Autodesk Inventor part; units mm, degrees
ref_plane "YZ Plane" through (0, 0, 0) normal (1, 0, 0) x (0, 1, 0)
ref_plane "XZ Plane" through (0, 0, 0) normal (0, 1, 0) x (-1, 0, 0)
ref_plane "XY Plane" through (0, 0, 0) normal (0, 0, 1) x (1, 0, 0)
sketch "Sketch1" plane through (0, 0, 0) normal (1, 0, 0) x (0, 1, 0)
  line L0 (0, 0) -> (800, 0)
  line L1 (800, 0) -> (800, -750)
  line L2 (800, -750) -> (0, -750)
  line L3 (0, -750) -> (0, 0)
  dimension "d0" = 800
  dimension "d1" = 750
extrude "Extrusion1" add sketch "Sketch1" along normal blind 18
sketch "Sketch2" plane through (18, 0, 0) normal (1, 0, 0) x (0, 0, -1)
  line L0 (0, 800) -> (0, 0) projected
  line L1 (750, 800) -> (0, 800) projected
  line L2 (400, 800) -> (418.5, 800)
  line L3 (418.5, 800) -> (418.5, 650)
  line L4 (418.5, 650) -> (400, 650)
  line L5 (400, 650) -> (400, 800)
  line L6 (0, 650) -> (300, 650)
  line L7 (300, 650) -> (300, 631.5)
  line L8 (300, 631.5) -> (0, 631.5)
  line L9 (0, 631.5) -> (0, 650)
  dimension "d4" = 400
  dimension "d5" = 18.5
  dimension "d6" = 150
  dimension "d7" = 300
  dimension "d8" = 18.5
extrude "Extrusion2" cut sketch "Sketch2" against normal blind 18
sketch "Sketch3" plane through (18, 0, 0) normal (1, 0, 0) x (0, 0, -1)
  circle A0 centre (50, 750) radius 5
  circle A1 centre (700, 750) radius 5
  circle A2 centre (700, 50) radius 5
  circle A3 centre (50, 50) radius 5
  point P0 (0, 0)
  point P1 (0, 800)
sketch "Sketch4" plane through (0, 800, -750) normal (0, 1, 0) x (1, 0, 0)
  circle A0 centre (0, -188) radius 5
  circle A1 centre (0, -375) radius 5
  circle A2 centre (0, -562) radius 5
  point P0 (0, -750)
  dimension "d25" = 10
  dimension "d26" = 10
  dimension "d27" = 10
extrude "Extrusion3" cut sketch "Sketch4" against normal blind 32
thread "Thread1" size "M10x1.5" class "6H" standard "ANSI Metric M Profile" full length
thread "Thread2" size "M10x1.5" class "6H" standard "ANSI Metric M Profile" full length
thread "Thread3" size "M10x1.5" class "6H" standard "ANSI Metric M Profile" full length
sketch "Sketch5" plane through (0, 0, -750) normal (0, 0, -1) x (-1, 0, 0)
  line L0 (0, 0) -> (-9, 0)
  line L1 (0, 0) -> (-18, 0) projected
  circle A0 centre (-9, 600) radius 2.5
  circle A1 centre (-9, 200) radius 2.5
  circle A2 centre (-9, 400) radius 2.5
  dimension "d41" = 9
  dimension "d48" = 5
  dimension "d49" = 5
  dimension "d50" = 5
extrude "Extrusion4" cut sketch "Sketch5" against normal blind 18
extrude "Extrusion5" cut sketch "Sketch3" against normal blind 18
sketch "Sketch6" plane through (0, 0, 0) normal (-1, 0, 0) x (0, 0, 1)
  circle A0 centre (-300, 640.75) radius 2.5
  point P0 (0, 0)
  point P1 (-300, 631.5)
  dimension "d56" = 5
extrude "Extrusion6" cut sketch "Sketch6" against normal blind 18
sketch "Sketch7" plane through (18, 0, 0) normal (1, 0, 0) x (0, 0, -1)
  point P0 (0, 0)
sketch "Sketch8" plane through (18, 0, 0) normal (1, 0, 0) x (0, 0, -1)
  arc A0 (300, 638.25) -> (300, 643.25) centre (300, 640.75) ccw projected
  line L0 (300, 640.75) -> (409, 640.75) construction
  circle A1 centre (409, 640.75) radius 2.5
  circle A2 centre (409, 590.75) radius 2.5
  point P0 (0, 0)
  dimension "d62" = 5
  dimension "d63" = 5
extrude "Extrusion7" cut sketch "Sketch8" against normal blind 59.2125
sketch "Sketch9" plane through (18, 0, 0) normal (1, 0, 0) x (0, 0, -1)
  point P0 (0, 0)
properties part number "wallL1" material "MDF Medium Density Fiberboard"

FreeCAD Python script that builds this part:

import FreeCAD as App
import Part
import Sketcher
from FreeCAD import Vector
Q = App.Units.Quantity


def add_polygon(sketch, points):
    """Adds a closed chain of lines whose ends are joined by coincident constraints."""
    first, n = sketch.GeometryCount, len(points)
    for a, b in zip(points, points[1:] + points[:1]):
        sketch.addGeometry(Part.LineSegment(App.Vector(*a, 0), App.Vector(*b, 0)), False)
    for i in range(n):
        sketch.addConstraint(Sketcher.Constraint("Coincident", first + i, 2, first + (i + 1) % n, 1))

doc = App.newDocument("Part")
params = doc.addObject("Spreadsheet::Sheet", "Params")
for row, (alias, value) in enumerate([
    ("sketch1_width", "800 mm"),
    ("sketch1_height", "750 mm"),
    ("pad1_length", "18 mm"),
    ("sketch2_width", "150 mm"),
    ("sketch2_height", "300 mm"),
    ("sketch2_width2", "18.5 mm"),
    ("pocket1_length", "18 mm"),
    ("sketch3_diameter", "10 mm"),
    ("pocket2_length", "32 mm"),
    ("sketch4_diameter", "5 mm"),
    ("pocket3_length", "18 mm"),
    ("sketch5_diameter", "10 mm"),
    ("pocket4_length", "18 mm"),
    ("sketch6_diameter", "5 mm"),
    ("pocket5_length", "18 mm"),
    ("sketch7_diameter", "5 mm"),
    ("pocket6_length", "59.2125 mm"),
], start=1):
    params.set(f"A{row}", alias)
    params.set(f"B{row}", "=" + value)
    params.setAlias(f"B{row}", alias)

body = doc.addObject("PartDesign::Body", "Body")

sketch1 = body.newObject("Sketcher::SketchObject", "Sketch")
sketch1.AttachmentSupport = (doc.getObject("YZ_Plane"), [""])
sketch1.MapMode = "FlatFace"
add_polygon(sketch1, [(800, 0), (0, 0), (0, -750), (800, -750)])
sketch1.addConstraint([
    Sketcher.Constraint("Horizontal", 0),
    Sketcher.Constraint("Vertical", 1),
    Sketcher.Constraint("Horizontal", 2),
    Sketcher.Constraint("Vertical", 3),
    Sketcher.Constraint("Coincident", 0, 2, -1, 1),
    Sketcher.Constraint("DistanceX", 0, 2, 0, 1, Q("800 mm")),
    Sketcher.Constraint("DistanceY", 1, 2, 1, 1, Q("750 mm")),
])
sketch1.setExpression("Constraints[9]", "Params.sketch1_width")
sketch1.setExpression("Constraints[10]", "Params.sketch1_height")
pad1 = body.newObject("PartDesign::Pad", "Pad")
pad1.Profile = sketch1
pad1.setExpression("Length", "Params.pad1_length")

sketch2 = body.newObject("Sketcher::SketchObject", "Sketch001")
sketch2.AttachmentSupport = (doc.getObject("YZ_Plane"), [""])
sketch2.MapMode = "FlatFace"
sketch2.AttachmentOffset = App.Placement(Vector(0, 0, 18), App.Rotation())
add_polygon(sketch2, [(650, -300), (650, 0), (632, 0), (632, -300)])
add_polygon(sketch2, [(800, -418), (800, -400), (650, -400), (650, -418)])
sketch2.addConstraint([
    Sketcher.Constraint("Vertical", 0),
    Sketcher.Constraint("Horizontal", 1),
    Sketcher.Constraint("Vertical", 2),
    Sketcher.Constraint("Horizontal", 3),
    Sketcher.Constraint("Vertical", 4),
    Sketcher.Constraint("Horizontal", 5),
    Sketcher.Constraint("Vertical", 6),
    Sketcher.Constraint("Horizontal", 7),
    Sketcher.Constraint("PointOnObject", 0, 2, -1),
    Sketcher.Constraint("Vertical", 3, 2, 5, 2),
    Sketcher.Constraint("Equal", 3, 4),
    Sketcher.Constraint("DistanceX", 5, 2, 5, 1, Q("150 mm")),
    Sketcher.Constraint("DistanceY", 0, 1, 0, 2, Q("300 mm")),
    Sketcher.Constraint("DistanceX", 1, 2, 1, 1, Q("18.5 mm")),
    Sketcher.Constraint("DistanceY", 4, 2, -1, 1, Q("400 mm")),
    Sketcher.Constraint("DistanceX", -1, 1, 0, 2, Q("650 mm")),
])
sketch2.setExpression("Constraints[19]", "Params.sketch2_width")
sketch2.setExpression("Constraints[20]", "Params.sketch2_height")
sketch2.setExpression("Constraints[21]", "Params.sketch2_width2")
pocket1 = body.newObject("PartDesign::Pocket", "Pocket")
pocket1.Profile = sketch2
pocket1.setExpression("Length", "Params.pocket1_length")

sketch3 = body.newObject("Sketcher::SketchObject", "Sketch002")
sketch3.AttachmentSupport = (doc.getObject("XZ_Plane"), [""])
sketch3.MapMode = "FlatFace"
sketch3.AttachmentOffset = App.Placement(Vector(0, 0, -800), App.Rotation())
sketch3.addGeometry([
    Part.Circle(Vector(0, -562, 0), Vector(0, 0, 1), 5),
    Part.Circle(Vector(0, -375, 0), Vector(0, 0, 1), 5),
    Part.Circle(Vector(0, -188, 0), Vector(0, 0, 1), 5),
], False)
sketch3.addConstraint([
    Sketcher.Constraint("Equal", 0, 1),
    Sketcher.Constraint("Equal", 1, 2),
    Sketcher.Constraint("PointOnObject", 0, 3, -2),
    Sketcher.Constraint("PointOnObject", 1, 3, -2),
    Sketcher.Constraint("PointOnObject", 2, 3, -2),
    Sketcher.Constraint("Diameter", 0, Q("10 mm")),
    Sketcher.Constraint("DistanceY", 0, 3, -1, 1, Q("562 mm")),
    Sketcher.Constraint("DistanceY", 1, 3, -1, 1, Q("375 mm")),
    Sketcher.Constraint("DistanceY", 2, 3, -1, 1, Q("188 mm")),
])
sketch3.setExpression("Constraints[5]", "Params.sketch3_diameter")
pocket2 = body.newObject("PartDesign::Pocket", "Pocket001")
pocket2.Profile = sketch3
pocket2.setExpression("Length", "Params.pocket2_length")
pocket2.Reversed = True

sketch4 = body.newObject("Sketcher::SketchObject", "Sketch003")
sketch4.AttachmentSupport = (doc.getObject("XY_Plane"), [""])
sketch4.MapMode = "FlatFace"
sketch4.AttachmentOffset = App.Placement(Vector(0, 0, -750), App.Rotation())
sketch4.addGeometry([
    Part.Circle(Vector(9, 600, 0), Vector(0, 0, 1), 2.5),
    Part.Circle(Vector(9, 200, 0), Vector(0, 0, 1), 2.5),
    Part.Circle(Vector(9, 400, 0), Vector(0, 0, 1), 2.5),
], False)
sketch4.addConstraint([
    Sketcher.Constraint("Equal", 0, 1),
    Sketcher.Constraint("Equal", 1, 2),
    Sketcher.Constraint("Vertical", 0, 3, 1, 3),
    Sketcher.Constraint("Vertical", 1, 3, 2, 3),
    Sketcher.Constraint("Diameter", 0, Q("5 mm")),
    Sketcher.Constraint("DistanceX", -1, 1, 0, 3, Q("9 mm")),
    Sketcher.Constraint("DistanceY", -1, 1, 0, 3, Q("600 mm")),
    Sketcher.Constraint("DistanceY", -1, 1, 1, 3, Q("200 mm")),
    Sketcher.Constraint("DistanceY", -1, 1, 2, 3, Q("400 mm")),
])
sketch4.setExpression("Constraints[4]", "Params.sketch4_diameter")
pocket3 = body.newObject("PartDesign::Pocket", "Pocket002")
pocket3.Profile = sketch4
pocket3.setExpression("Length", "Params.pocket3_length")
pocket3.Reversed = True

sketch5 = body.newObject("Sketcher::SketchObject", "Sketch004")
sketch5.AttachmentSupport = (doc.getObject("YZ_Plane"), [""])
sketch5.MapMode = "FlatFace"
sketch5.AttachmentOffset = App.Placement(Vector(0, 0, 18), App.Rotation())
sketch5.addGeometry([
    Part.Circle(Vector(750, -50, 0), Vector(0, 0, 1), 5),
    Part.Circle(Vector(750, -700, 0), Vector(0, 0, 1), 5),
    Part.Circle(Vector(50, -700, 0), Vector(0, 0, 1), 5),
    Part.Circle(Vector(50, -50, 0), Vector(0, 0, 1), 5),
], False)
sketch5.addConstraint([
    Sketcher.Constraint("Equal", 0, 1),
    Sketcher.Constraint("Equal", 1, 2),
    Sketcher.Constraint("Equal", 2, 3),
    Sketcher.Constraint("Horizontal", 1, 3, 2, 3),
    Sketcher.Constraint("Horizontal", 0, 3, 3, 3),
    Sketcher.Constraint("Vertical", 0, 3, 1, 3),
    Sketcher.Constraint("Vertical", 2, 3, 3, 3),
    Sketcher.Constraint("Diameter", 0, Q("10 mm")),
    Sketcher.Constraint("DistanceX", -1, 1, 0, 3, Q("750 mm")),
    Sketcher.Constraint("DistanceY", 0, 3, -1, 1, Q("50 mm")),
    Sketcher.Constraint("DistanceY", 1, 3, -1, 1, Q("700 mm")),
    Sketcher.Constraint("DistanceX", -1, 1, 2, 3, Q("50 mm")),
])
sketch5.setExpression("Constraints[7]", "Params.sketch5_diameter")
pocket4 = body.newObject("PartDesign::Pocket", "Pocket003")
pocket4.Profile = sketch5
pocket4.setExpression("Length", "Params.pocket4_length")

sketch6 = body.newObject("Sketcher::SketchObject", "Sketch005")
sketch6.AttachmentSupport = (doc.getObject("YZ_Plane"), [""])
sketch6.MapMode = "FlatFace"
sketch6.addGeometry(Part.Circle(Vector(640.8, -300, 0), Vector(0, 0, 1), 2.5), False)
sketch6.addConstraint([
    Sketcher.Constraint("Diameter", 0, Q("5 mm")),
    Sketcher.Constraint("DistanceY", 0, 3, -1, 1, Q("300 mm")),
    Sketcher.Constraint("DistanceX", -1, 1, 0, 3, Q("640.75 mm")),
])
sketch6.setExpression("Constraints[0]", "Params.sketch6_diameter")
pocket5 = body.newObject("PartDesign::Pocket", "Pocket004")
pocket5.Profile = sketch6
pocket5.setExpression("Length", "Params.pocket5_length")
pocket5.Reversed = True

sketch7 = body.newObject("Sketcher::SketchObject", "Sketch006")
sketch7.AttachmentSupport = (doc.getObject("YZ_Plane"), [""])
sketch7.MapMode = "FlatFace"
sketch7.AttachmentOffset = App.Placement(Vector(0, 0, 18), App.Rotation())
sketch7.addGeometry([
    Part.Circle(Vector(640.8, -409, 0), Vector(0, 0, 1), 2.5),
    Part.Circle(Vector(590.8, -409, 0), Vector(0, 0, 1), 2.5),
], False)
sketch7.addConstraint([
    Sketcher.Constraint("Equal", 0, 1),
    Sketcher.Constraint("Horizontal", 0, 3, 1, 3),
    Sketcher.Constraint("Diameter", 0, Q("5 mm")),
    Sketcher.Constraint("DistanceY", 0, 3, -1, 1, Q("409 mm")),
    Sketcher.Constraint("DistanceX", 1, 3, 0, 3, Q("50 mm")),
    Sketcher.Constraint("DistanceX", -1, 1, 0, 3, Q("640.75 mm")),
])
sketch7.setExpression("Constraints[2]", "Params.sketch7_diameter")
pocket6 = body.newObject("PartDesign::Pocket", "Pocket005")
pocket6.Profile = sketch7
pocket6.setExpression("Length", "Params.pocket6_length")

doc.recompute()
